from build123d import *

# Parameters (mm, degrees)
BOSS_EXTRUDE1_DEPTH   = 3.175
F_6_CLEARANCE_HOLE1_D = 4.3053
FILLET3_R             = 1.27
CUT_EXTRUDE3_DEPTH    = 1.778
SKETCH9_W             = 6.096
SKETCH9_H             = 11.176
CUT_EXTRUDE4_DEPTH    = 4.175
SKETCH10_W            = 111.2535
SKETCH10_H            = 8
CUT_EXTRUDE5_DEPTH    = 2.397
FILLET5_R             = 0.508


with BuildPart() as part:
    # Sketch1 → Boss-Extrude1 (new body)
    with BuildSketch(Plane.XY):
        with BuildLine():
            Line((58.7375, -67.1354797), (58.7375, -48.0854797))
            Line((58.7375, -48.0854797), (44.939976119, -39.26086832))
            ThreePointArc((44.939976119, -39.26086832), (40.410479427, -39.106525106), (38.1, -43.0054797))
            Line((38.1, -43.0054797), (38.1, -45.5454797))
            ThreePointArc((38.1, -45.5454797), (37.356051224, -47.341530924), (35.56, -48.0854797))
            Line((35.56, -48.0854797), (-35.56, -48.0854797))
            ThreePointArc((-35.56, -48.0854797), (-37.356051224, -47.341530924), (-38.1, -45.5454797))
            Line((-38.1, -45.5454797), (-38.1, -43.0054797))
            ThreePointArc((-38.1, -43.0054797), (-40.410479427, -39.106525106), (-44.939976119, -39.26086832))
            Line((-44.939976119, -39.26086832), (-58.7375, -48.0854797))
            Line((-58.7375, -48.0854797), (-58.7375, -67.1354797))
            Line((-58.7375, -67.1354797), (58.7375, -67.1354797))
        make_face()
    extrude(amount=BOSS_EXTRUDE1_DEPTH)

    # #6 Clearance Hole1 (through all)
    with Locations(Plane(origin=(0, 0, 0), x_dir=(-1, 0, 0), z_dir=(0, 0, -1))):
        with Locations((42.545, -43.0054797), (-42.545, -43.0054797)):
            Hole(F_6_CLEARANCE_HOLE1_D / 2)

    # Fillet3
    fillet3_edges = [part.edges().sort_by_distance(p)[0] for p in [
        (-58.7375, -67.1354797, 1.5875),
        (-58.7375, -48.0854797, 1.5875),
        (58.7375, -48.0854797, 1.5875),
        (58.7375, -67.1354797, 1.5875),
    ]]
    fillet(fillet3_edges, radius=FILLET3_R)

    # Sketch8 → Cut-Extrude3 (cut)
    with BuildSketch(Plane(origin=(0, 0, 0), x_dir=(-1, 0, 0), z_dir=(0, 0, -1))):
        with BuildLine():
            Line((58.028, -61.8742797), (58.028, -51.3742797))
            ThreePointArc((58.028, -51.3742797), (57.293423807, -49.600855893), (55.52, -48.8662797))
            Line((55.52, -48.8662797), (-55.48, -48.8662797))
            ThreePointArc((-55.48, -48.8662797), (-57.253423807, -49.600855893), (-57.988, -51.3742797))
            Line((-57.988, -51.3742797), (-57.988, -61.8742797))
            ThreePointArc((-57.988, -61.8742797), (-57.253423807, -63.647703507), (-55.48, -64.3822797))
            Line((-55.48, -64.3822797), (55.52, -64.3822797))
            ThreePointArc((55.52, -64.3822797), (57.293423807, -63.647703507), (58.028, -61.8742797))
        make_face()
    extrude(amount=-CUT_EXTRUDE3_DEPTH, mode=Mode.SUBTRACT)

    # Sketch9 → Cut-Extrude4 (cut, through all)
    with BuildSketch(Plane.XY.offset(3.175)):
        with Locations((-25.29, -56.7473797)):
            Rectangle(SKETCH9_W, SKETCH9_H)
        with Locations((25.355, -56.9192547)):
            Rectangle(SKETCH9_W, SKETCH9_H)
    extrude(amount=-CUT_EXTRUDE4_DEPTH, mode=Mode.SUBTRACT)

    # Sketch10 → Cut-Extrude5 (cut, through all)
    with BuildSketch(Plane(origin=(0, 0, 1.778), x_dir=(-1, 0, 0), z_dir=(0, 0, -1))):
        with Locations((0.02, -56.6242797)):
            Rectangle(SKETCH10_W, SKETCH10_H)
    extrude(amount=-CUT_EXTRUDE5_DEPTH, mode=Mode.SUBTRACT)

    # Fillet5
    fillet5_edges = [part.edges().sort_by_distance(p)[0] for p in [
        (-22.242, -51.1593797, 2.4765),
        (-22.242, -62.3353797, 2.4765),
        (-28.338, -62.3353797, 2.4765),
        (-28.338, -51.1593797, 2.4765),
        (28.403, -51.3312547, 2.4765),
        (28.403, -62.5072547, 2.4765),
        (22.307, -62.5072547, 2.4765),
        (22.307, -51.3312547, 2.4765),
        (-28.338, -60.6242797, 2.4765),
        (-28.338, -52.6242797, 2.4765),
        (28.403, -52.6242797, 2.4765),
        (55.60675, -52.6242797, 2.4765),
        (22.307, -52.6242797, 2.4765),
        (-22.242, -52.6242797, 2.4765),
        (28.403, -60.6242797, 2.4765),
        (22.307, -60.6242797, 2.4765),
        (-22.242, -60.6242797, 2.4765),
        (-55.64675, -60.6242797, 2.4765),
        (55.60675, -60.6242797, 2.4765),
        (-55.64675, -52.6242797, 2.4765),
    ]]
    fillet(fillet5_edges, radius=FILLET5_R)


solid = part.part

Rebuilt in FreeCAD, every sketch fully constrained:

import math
import FreeCAD as App
import Part
import Sketcher

V = App.Vector
Q = App.Units.Quantity


def edges_at(feature, points):
    """Names of the edges that pass closest to the given points."""
    edges = feature.Shape.Edges
    near = lambda p: min(range(len(edges)), key=lambda i: edges[i].distToShape(Part.Vertex(*p))[0])
    return sorted({f"Edge{near(p) + 1}" for p in points})


def add_polygon(sketch, points):
    """Adds a closed chain of lines whose ends are joined by coincident constraints."""
    first, n = sketch.GeometryCount, len(points)
    for a, b in zip(points, points[1:] + points[:1]):
        sketch.addGeometry(Part.LineSegment(App.Vector(*a, 0), App.Vector(*b, 0)), False)
    for i in range(n):
        sketch.addConstraint(Sketcher.Constraint("Coincident", first + i, 2, first + (i + 1) % n, 1))

doc = App.newDocument("Part")
body = doc.addObject("PartDesign::Body", "Body")

sketch1 = body.newObject("Sketcher::SketchObject", "Sketch")
sketch1.AttachmentSupport = (doc.getObject("XY_Plane"), [""])
sketch1.MapMode = "FlatFace"
sketch1.addGeometry(Part.LineSegment(V(58.7375, -67.13548, 0), V(58.7375, -48.08548, 0)), False)
sketch1.addGeometry(Part.LineSegment(V(58.7375, -48.08548, 0), V(44.939976, -39.260868, 0)), False)
sketch1.addGeometry(Part.ArcOfCircle(Part.Circle(V(42.545, -43.00548, 0), V(0, 0, 1), 4.445), math.radians(57.397858), math.radians(180)), False)
sketch1.addGeometry(Part.LineSegment(V(38.1, -43.00548, 0), V(38.1, -45.54548, 0)), False)
sketch1.addGeometry(Part.ArcOfCircle(Part.Circle(V(35.56, -45.54548, 0), V(0, 0, 1), 2.54), math.radians(-90), math.radians(0)), False)
sketch1.addGeometry(Part.LineSegment(V(35.56, -48.08548, 0), V(-35.56, -48.08548, 0)), False)
sketch1.addGeometry(Part.ArcOfCircle(Part.Circle(V(-35.56, -45.54548, 0), V(0, 0, 1), 2.54), math.radians(-180), math.radians(-90)), False)
sketch1.addGeometry(Part.LineSegment(V(-38.1, -45.54548, 0), V(-38.1, -43.00548, 0)), False)
sketch1.addGeometry(Part.ArcOfCircle(Part.Circle(V(-42.545, -43.00548, 0), V(0, 0, 1), 4.445), math.radians(0), math.radians(122.602142)), False)
sketch1.addGeometry(Part.LineSegment(V(-44.939976, -39.260868, 0), V(-58.7375, -48.08548, 0)), False)
sketch1.addGeometry(Part.LineSegment(V(-58.7375, -48.08548, 0), V(-58.7375, -67.13548, 0)), False)
sketch1.addGeometry(Part.LineSegment(V(-58.7375, -67.13548, 0), V(58.7375, -67.13548, 0)), False)
sketch1.addConstraint(Sketcher.Constraint("Coincident", 0, 2, 1, 1))
sketch1.addConstraint(Sketcher.Constraint("Tangent", 1, 2, 2, 1))
sketch1.addConstraint(Sketcher.Constraint("Tangent", 2, 2, 3, 1))
sketch1.addConstraint(Sketcher.Constraint("Tangent", 3, 2, 4, 2))
sketch1.addConstraint(Sketcher.Constraint("Tangent", 4, 1, 5, 1))
sketch1.addConstraint(Sketcher.Constraint("Tangent", 5, 2, 6, 2))
sketch1.addConstraint(Sketcher.Constraint("Tangent", 6, 1, 7, 1))
sketch1.addConstraint(Sketcher.Constraint("Tangent", 7, 2, 8, 1))
sketch1.addConstraint(Sketcher.Constraint("Tangent", 8, 2, 9, 1))
sketch1.addConstraint(Sketcher.Constraint("Coincident", 9, 2, 10, 1))
sketch1.addConstraint(Sketcher.Constraint("Coincident", 10, 2, 11, 1))
sketch1.addConstraint(Sketcher.Constraint("Coincident", 11, 2, 0, 1))
sketch1.addConstraint(Sketcher.Constraint("Vertical", 0))
sketch1.addConstraint(Sketcher.Constraint("Vertical", 3))
sketch1.addConstraint(Sketcher.Constraint("Horizontal", 5))
sketch1.addConstraint(Sketcher.Constraint("Vertical", 7))
sketch1.addConstraint(Sketcher.Constraint("Vertical", 10))
sketch1.addConstraint(Sketcher.Constraint("Horizontal", 11))
sketch1.addConstraint(Sketcher.Constraint("Equal", 4, 6))
sketch1.addConstraint(Sketcher.Constraint("Equal", 2, 8))
sketch1.addConstraint(Sketcher.Constraint("Symmetric", 2, 3, 8, 3, -2))
sketch1.addConstraint(Sketcher.Constraint("Symmetric", 0, 2, 9, 2, -2))
sketch1.addConstraint(Sketcher.Constraint("Horizontal", 0, 2, 4, 1))
sketch1.addConstraint(Sketcher.Constraint("Radius", 4, Q("0.1 in")))
sketch1.addConstraint(Sketcher.Constraint("DistanceX", 5, 2, 5, 1, Q("2.8 in")))
sketch1.addConstraint(Sketcher.Constraint("DistanceY", 3, 2, 3, 1, Q("0.1 in")))
sketch1.addConstraint(Sketcher.Constraint("Radius", 2, Q("0.175 in")))
sketch1.addConstraint(Sketcher.Constraint("DistanceY", 0, 1, 0, 2, Q("0.75 in")))
sketch1.addConstraint(Sketcher.Constraint("DistanceX", 11, 1, 11, 2, Q("4.625 in")))
sketch1.addConstraint(Sketcher.Constraint("DistanceY", 2, 3, -1, 1, Q("43.00548 mm")))
pad1 = body.newObject("PartDesign::Pad", "Pad")
pad1.Profile = sketch1
pad1.Length = Q("0.125 in")

sketch2 = body.newObject("Sketcher::SketchObject", "Sketch001")
sketch2.AttachmentSupport = (doc.getObject("XY_Plane"), [""])
sketch2.MapMode = "FlatFace"
sketch2.addGeometry(Part.Circle(V(-42.545, -43.00548, 0), V(0, 0, 1), 2.15265), False)
sketch2.addGeometry(Part.Circle(V(42.545, -43.00548, 0), V(0, 0, 1), 2.15265), False)
sketch2.addConstraint(Sketcher.Constraint("Equal", 0, 1))
sketch2.addConstraint(Sketcher.Constraint("Symmetric", 0, 3, 1, 3, -2))
sketch2.addConstraint(Sketcher.Constraint("Diameter", 0, Q("0.1695 in")))
sketch2.addConstraint(Sketcher.Constraint("DistanceX", 0, 3, 1, 3, Q("3.35 in")))
sketch2.addConstraint(Sketcher.Constraint("DistanceY", 0, 3, -1, 1, Q("43.00548 mm")))
doc.recompute()
hole = body.newObject("PartDesign::Hole", "Hole")
hole.Profile = sketch2
hole.ThreadType = "None"
hole.Diameter = Q("0.1695 in")
hole.DepthType = "ThroughAll"
hole.Reversed = True
doc.recompute()

fillet = body.newObject("PartDesign::Fillet", "Fillet")
fillet.Base = (hole, edges_at(hole, [
    (-58.737, -67.135, 1.587),
    (-58.737, -48.085, 1.587),
    (58.737, -48.085, 1.587),
    (58.737, -67.135, 1.587),
]))
fillet.Radius = Q("0.05 in")

sketch3 = body.newObject("Sketcher::SketchObject", "Sketch002")
sketch3.AttachmentSupport = (doc.getObject("XY_Plane"), [""])
sketch3.MapMode = "FlatFace"
sketch3.addGeometry(Part.LineSegment(V(-58.028, -61.87428, 0), V(-58.028, -51.37428, 0)), False)
sketch3.addGeometry(Part.ArcOfCircle(Part.Circle(V(-55.52, -51.37428, 0), V(0, 0, 1), 2.508), math.radians(90), math.radians(180)), False)
sketch3.addGeometry(Part.LineSegment(V(-55.52, -48.86628, 0), V(55.48, -48.86628, 0)), False)
sketch3.addGeometry(Part.ArcOfCircle(Part.Circle(V(55.48, -51.37428, 0), V(0, 0, 1), 2.508), math.radians(0), math.radians(90)), False)
sketch3.addGeometry(Part.LineSegment(V(57.988, -51.37428, 0), V(57.988, -61.87428, 0)), False)
sketch3.addGeometry(Part.ArcOfCircle(Part.Circle(V(55.48, -61.87428, 0), V(0, 0, 1), 2.508), math.radians(-90), math.radians(0)), False)
sketch3.addGeometry(Part.LineSegment(V(55.48, -64.38228, 0), V(-55.52, -64.38228, 0)), False)
sketch3.addGeometry(Part.ArcOfCircle(Part.Circle(V(-55.52, -61.87428, 0), V(0, 0, 1), 2.508), math.radians(-180), math.radians(-90)), False)
sketch3.addConstraint(Sketcher.Constraint("Tangent", 0, 2, 1, 2))
sketch3.addConstraint(Sketcher.Constraint("Tangent", 1, 1, 2, 1))
sketch3.addConstraint(Sketcher.Constraint("Tangent", 2, 2, 3, 2))
sketch3.addConstraint(Sketcher.Constraint("Tangent", 3, 1, 4, 1))
sketch3.addConstraint(Sketcher.Constraint("Tangent", 4, 2, 5, 2))
sketch3.addConstraint(Sketcher.Constraint("Tangent", 5, 1, 6, 1))
sketch3.addConstraint(Sketcher.Constraint("Tangent", 6, 2, 7, 2))
sketch3.addConstraint(Sketcher.Constraint("Tangent", 7, 1, 0, 1))
sketch3.addConstraint(Sketcher.Constraint("Vertical", 0))
sketch3.addConstraint(Sketcher.Constraint("Horizontal", 2))
sketch3.addConstraint(Sketcher.Constraint("Vertical", 4))
sketch3.addConstraint(Sketcher.Constraint("Horizontal", 6))
sketch3.addConstraint(Sketcher.Constraint("Equal", 1, 3))
sketch3.addConstraint(Sketcher.Constraint("Equal", 3, 5))
sketch3.addConstraint(Sketcher.Constraint("Equal", 5, 7))
sketch3.addConstraint(Sketcher.Constraint("Radius", 1, Q("2.508 mm")))
sketch3.addConstraint(Sketcher.Constraint("DistanceX", 2, 1, 2, 2, Q("111 mm")))
sketch3.addConstraint(Sketcher.Constraint("DistanceY", 0, 1, 0, 2, Q("10.5 mm")))
sketch3.addConstraint(Sketcher.Constraint("DistanceX", 1, 3, -1, 1, Q("55.52 mm")))
sketch3.addConstraint(Sketcher.Constraint("DistanceY", 1, 3, -1, 1, Q("51.37428 mm")))
pocket1 = body.newObject("PartDesign::Pocket", "Pocket")
pocket1.Profile = sketch3
pocket1.Length = Q("0.07 in")
pocket1.Reversed = True

sketch4 = body.newObject("Sketcher::SketchObject", "Sketch003")
sketch4.AttachmentSupport = (doc.getObject("XY_Plane"), [""])
sketch4.MapMode = "FlatFace"
sketch4.AttachmentOffset = App.Placement(V(0, 0, 0.125 * 25.4), App.Rotation())
add_polygon(sketch4, [(-28.338, -51.15938), (-28.338, -62.33538), (-22.242, -62.33538), (-22.242, -51.15938)])
add_polygon(sketch4, [(22.307, -51.331255), (22.307, -62.507255), (28.403, -62.507255), (28.403, -51.331255)])
sketch4.addConstraint(Sketcher.Constraint("Vertical", 0))
sketch4.addConstraint(Sketcher.Constraint("Horizontal", 1))
sketch4.addConstraint(Sketcher.Constraint("Vertical", 2))
sketch4.addConstraint(Sketcher.Constraint("Horizontal", 3))
sketch4.addConstraint(Sketcher.Constraint("Vertical", 4))
sketch4.addConstraint(Sketcher.Constraint("Horizontal", 5))
sketch4.addConstraint(Sketcher.Constraint("Vertical", 6))
sketch4.addConstraint(Sketcher.Constraint("Horizontal", 7))
sketch4.addConstraint(Sketcher.Constraint("Equal", 3, 5))
sketch4.addConstraint(Sketcher.Constraint("Equal", 2, 4))
sketch4.addConstraint(Sketcher.Constraint("DistanceX", 1, 1, 1, 2, Q("0.24 in")))
sketch4.addConstraint(Sketcher.Constraint("DistanceY", 0, 2, 0, 1, Q("0.44 in")))
sketch4.addConstraint(Sketcher.Constraint("DistanceX", 0, 2, -1, 1, Q("28.338 mm")))
sketch4.addConstraint(Sketcher.Constraint("DistanceX", -1, 1, 4, 2, Q("22.307 mm")))
sketch4.addConstraint(Sketcher.Constraint("DistanceY", 0, 2, -1, 1, Q("62.33538 mm")))
sketch4.addConstraint(Sketcher.Constraint("DistanceY", 4, 2, -1, 1, Q("62.507255 mm")))
pocket2 = body.newObject("PartDesign::Pocket", "Pocket001")
pocket2.Profile = sketch4
pocket2.Type = "ThroughAll"

sketch5 = body.newObject("Sketcher::SketchObject", "Sketch004")
sketch5.AttachmentSupport = (doc.getObject("XY_Plane"), [""])
sketch5.MapMode = "FlatFace"
sketch5.AttachmentOffset = App.Placement(V(0, 0, 0.07 * 25.4), App.Rotation())
add_polygon(sketch5, [(55.60675, -52.62428), (55.60675, -60.62428), (-55.64675, -60.62428), (-55.64675, -52.62428)])
sketch5.addConstraint(Sketcher.Constraint("Vertical", 0))
sketch5.addConstraint(Sketcher.Constraint("Horizontal", 1))
sketch5.addConstraint(Sketcher.Constraint("Vertical", 2))
sketch5.addConstraint(Sketcher.Constraint("Horizontal", 3))
sketch5.addConstraint(Sketcher.Constraint("DistanceX", 1, 2, 1, 1, Q("111.2535 mm")))
sketch5.addConstraint(Sketcher.Constraint("DistanceY", 0, 2, 0, 1, Q("8 mm")))
sketch5.addConstraint(Sketcher.Constraint("DistanceX", -1, 1, 0, 2, Q("55.60675 mm")))
sketch5.addConstraint(Sketcher.Constraint("DistanceY", 0, 2, -1, 1, Q("60.62428 mm")))
pocket3 = body.newObject("PartDesign::Pocket", "Pocket002")
pocket3.Profile = sketch5
pocket3.Type = "ThroughAll"
pocket3.Reversed = True
doc.recompute()

fillet2 = body.newObject("PartDesign::Fillet", "Fillet001")
fillet2.Base = (pocket3, edges_at(pocket3, [
    (-22.242, -51.159, 2.477),
    (-22.242, -62.335, 2.477),
    (-28.338, -62.335, 2.477),
    (-28.338, -51.159, 2.477),
    (28.403, -51.331, 2.477),
    (28.403, -62.507, 2.477),
    (22.307, -62.507, 2.477),
    (22.307, -51.331, 2.477),
    (-28.338, -60.624, 2.477),
    (-28.338, -52.624, 2.477),
    (28.403, -52.624, 2.477),
    (55.607, -52.624, 2.477),
    (22.307, -52.624, 2.477),
    (-22.242, -52.624, 2.477),
    (28.403, -60.624, 2.477),
    (22.307, -60.624, 2.477),
    (-22.242, -60.624, 2.477),
    (-55.647, -60.624, 2.477),
    (55.607, -60.624, 2.477),
    (-55.647, -52.624, 2.477),
]))
fillet2.Radius = Q("0.02 in")

doc.recompute()
